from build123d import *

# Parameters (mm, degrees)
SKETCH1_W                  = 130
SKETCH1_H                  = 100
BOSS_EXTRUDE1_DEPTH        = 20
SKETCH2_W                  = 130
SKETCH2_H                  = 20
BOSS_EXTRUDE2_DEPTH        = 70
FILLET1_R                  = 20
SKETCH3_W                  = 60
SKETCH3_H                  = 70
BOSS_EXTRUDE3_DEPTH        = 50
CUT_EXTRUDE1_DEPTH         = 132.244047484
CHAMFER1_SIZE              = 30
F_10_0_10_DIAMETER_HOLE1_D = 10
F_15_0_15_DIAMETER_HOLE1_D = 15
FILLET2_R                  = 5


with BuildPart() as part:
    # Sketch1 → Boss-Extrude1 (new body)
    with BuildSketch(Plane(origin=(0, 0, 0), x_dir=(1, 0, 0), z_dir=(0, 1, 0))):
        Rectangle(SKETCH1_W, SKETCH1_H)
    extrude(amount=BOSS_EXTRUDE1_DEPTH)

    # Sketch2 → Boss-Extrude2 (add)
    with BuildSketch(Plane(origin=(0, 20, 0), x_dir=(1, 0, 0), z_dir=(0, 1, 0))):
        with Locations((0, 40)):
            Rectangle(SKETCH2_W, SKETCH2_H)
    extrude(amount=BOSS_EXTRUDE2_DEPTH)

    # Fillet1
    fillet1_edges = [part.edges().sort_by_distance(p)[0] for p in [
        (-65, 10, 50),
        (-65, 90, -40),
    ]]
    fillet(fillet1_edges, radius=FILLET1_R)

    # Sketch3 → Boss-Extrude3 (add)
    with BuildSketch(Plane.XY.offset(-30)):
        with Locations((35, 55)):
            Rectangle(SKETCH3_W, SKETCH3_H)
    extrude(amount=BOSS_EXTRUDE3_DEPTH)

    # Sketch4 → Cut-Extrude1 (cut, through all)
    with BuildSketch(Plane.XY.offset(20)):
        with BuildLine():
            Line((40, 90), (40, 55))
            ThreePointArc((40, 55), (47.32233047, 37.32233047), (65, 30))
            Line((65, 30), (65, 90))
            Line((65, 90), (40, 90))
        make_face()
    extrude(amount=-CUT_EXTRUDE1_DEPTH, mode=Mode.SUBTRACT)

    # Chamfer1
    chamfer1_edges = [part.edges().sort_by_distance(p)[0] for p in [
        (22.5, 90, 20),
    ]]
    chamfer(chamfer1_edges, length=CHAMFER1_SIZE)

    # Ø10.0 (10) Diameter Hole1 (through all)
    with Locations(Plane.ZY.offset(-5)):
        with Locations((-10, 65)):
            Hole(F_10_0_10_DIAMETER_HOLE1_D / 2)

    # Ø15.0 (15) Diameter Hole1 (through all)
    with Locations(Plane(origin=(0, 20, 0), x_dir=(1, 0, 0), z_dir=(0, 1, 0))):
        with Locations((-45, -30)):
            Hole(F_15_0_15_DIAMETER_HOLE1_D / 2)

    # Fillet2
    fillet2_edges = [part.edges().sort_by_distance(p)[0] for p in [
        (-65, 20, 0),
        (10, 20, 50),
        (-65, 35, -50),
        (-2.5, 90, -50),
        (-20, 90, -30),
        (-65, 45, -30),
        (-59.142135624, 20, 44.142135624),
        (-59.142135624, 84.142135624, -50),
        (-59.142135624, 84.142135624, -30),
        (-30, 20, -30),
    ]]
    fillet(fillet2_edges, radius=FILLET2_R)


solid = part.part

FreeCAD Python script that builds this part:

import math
import FreeCAD as App
import Part
import Sketcher
Q = App.Units.Quantity


def edges_at(feature, points):
    """Names of the edges that pass closest to the given points."""
    edges = feature.Shape.Edges
    near = lambda p: min(range(len(edges)), key=lambda i: edges[i].distToShape(Part.Vertex(*p))[0])
    return sorted({f"Edge{near(p) + 1}" for p in points})


def add_polygon(sketch, points):
    """Adds a closed chain of lines whose ends are joined by coincident constraints."""
    first, n = sketch.GeometryCount, len(points)
    for a, b in zip(points, points[1:] + points[:1]):
        sketch.addGeometry(Part.LineSegment(App.Vector(*a, 0), App.Vector(*b, 0)), False)
    for i in range(n):
        sketch.addConstraint(Sketcher.Constraint("Coincident", first + i, 2, first + (i + 1) % n, 1))

doc = App.newDocument("Part")
body = doc.addObject("PartDesign::Body", "Body")

# Sketch on XZ plane
sketch1 = doc.addObject("Sketcher::SketchObject", "Sketch")
body.addObject(sketch1)
sketch1.AttachmentSupport = (doc.XZ_Plane, [""])
sketch1.MapMode = "FlatFace"
add_polygon(sketch1, [(-65, -50), (-65, 50), (65, 50), (65, -50)])  # lines 0-3
sketch1.addConstraint(Sketcher.Constraint("Vertical", 0))
sketch1.addConstraint(Sketcher.Constraint("Horizontal", 1))
sketch1.addConstraint(Sketcher.Constraint("Vertical", 2))
sketch1.addConstraint(Sketcher.Constraint("Horizontal", 3))
sketch1.addConstraint(Sketcher.Constraint("Symmetric", 0, 2, 2, 2, -1, 1))
sketch1.addConstraint(Sketcher.Constraint("DistanceX", 1, 1, 1, 2, Q("130 mm")))
sketch1.addConstraint(Sketcher.Constraint("DistanceY", 0, 1, 0, 2, Q("100 mm")))
pad1 = doc.addObject("PartDesign::Pad", "Pad")
body.addObject(pad1)
pad1.Profile = sketch1
pad1.Length = 20
pad1.Reversed = True

# Sketch on XZ plane
sketch2 = doc.addObject("Sketcher::SketchObject", "Sketch001")
body.addObject(sketch2)
sketch2.AttachmentSupport = (doc.XZ_Plane, [""])
sketch2.MapMode = "FlatFace"
sketch2.AttachmentOffset = App.Placement(App.Vector(0, 0, -20), App.Rotation())
add_polygon(sketch2, [(-65, -50), (-65, -30), (65, -30), (65, -50)])  # lines 0-3
sketch2.addConstraint(Sketcher.Constraint("Vertical", 0))
sketch2.addConstraint(Sketcher.Constraint("Horizontal", 1))
sketch2.addConstraint(Sketcher.Constraint("Vertical", 2))
sketch2.addConstraint(Sketcher.Constraint("Horizontal", 3))
sketch2.addConstraint(Sketcher.Constraint("DistanceX", 1, 1, 1, 2, Q("130 mm")))
sketch2.addConstraint(Sketcher.Constraint("DistanceY", 0, 1, 0, 2, Q("20 mm")))
sketch2.addConstraint(Sketcher.Constraint("DistanceX", 0, 2, -1, 1, Q("65 mm")))
sketch2.addConstraint(Sketcher.Constraint("DistanceY", 0, 2, -1, 1, Q("30 mm")))
pad2 = doc.addObject("PartDesign::Pad", "Pad001")
body.addObject(pad2)
pad2.Profile = sketch2
pad2.Length = 70
pad2.Reversed = True
doc.recompute()

fillet = doc.addObject("PartDesign::Fillet", "Fillet")
body.addObject(fillet)
fillet.Base = (pad2, edges_at(pad2, [(-65, 10, 50), (-65, 90, -40)]))
fillet.Radius = 20

# Sketch on XY plane
sketch3 = doc.addObject("Sketcher::SketchObject", "Sketch002")
body.addObject(sketch3)
sketch3.AttachmentSupport = (doc.XY_Plane, [""])
sketch3.MapMode = "FlatFace"
sketch3.AttachmentOffset = App.Placement(App.Vector(0, 0, -30), App.Rotation())
add_polygon(sketch3, [(5, 90), (5, 20), (65, 20), (65, 90)])  # lines 0-3
sketch3.addConstraint(Sketcher.Constraint("Vertical", 0))
sketch3.addConstraint(Sketcher.Constraint("Horizontal", 1))
sketch3.addConstraint(Sketcher.Constraint("Vertical", 2))
sketch3.addConstraint(Sketcher.Constraint("Horizontal", 3))
sketch3.addConstraint(Sketcher.Constraint("DistanceX", 1, 1, 1, 2, Q("60 mm")))
sketch3.addConstraint(Sketcher.Constraint("DistanceY", 0, 2, 0, 1, Q("70 mm")))
sketch3.addConstraint(Sketcher.Constraint("DistanceX", -1, 1, 0, 2, Q("5 mm")))
sketch3.addConstraint(Sketcher.Constraint("DistanceY", -1, 1, 0, 2, Q("20 mm")))
pad3 = doc.addObject("PartDesign::Pad", "Pad002")
body.addObject(pad3)
pad3.Profile = sketch3
pad3.Length = 50

# Sketch on XY plane
sketch4 = doc.addObject("Sketcher::SketchObject", "Sketch003")
body.addObject(sketch4)
sketch4.AttachmentSupport = (doc.XY_Plane, [""])
sketch4.MapMode = "FlatFace"
sketch4.AttachmentOffset = App.Placement(App.Vector(0, 0, 20), App.Rotation())
sketch4.addGeometry(Part.LineSegment(App.Vector(40, 90, 0), App.Vector(40, 55, 0)), False)
sketch4.addGeometry(Part.ArcOfCircle(Part.Circle(App.Vector(65, 55, 0), App.Vector(0, 0, 1), 25), math.radians(180), math.radians(270)), False)
sketch4.addGeometry(Part.LineSegment(App.Vector(65, 30, 0), App.Vector(65, 90, 0)), False)
sketch4.addGeometry(Part.LineSegment(App.Vector(65, 90, 0), App.Vector(40, 90, 0)), False)
sketch4.addConstraint(Sketcher.Constraint("Tangent", 0, 2, 1, 1))
sketch4.addConstraint(Sketcher.Constraint("Coincident", 1, 2, 2, 1))
sketch4.addConstraint(Sketcher.Constraint("Coincident", 2, 2, 3, 1))
sketch4.addConstraint(Sketcher.Constraint("Coincident", 3, 2, 0, 1))
sketch4.addConstraint(Sketcher.Constraint("Vertical", 0))
sketch4.addConstraint(Sketcher.Constraint("Vertical", 2))
sketch4.addConstraint(Sketcher.Constraint("Horizontal", 3))
sketch4.addConstraint(Sketcher.Constraint("Radius", 1, Q("25 mm")))
sketch4.addConstraint(Sketcher.Constraint("DistanceX", 3, 2, 3, 1, Q("25 mm")))
sketch4.addConstraint(Sketcher.Constraint("DistanceY", 0, 2, 0, 1, Q("35 mm")))
sketch4.addConstraint(Sketcher.Constraint("DistanceX", -1, 1, 1, 3, Q("65 mm")))
sketch4.addConstraint(Sketcher.Constraint("DistanceY", -1, 1, 1, 3, Q("55 mm")))
pocket1 = doc.addObject("PartDesign::Pocket", "Pocket")
body.addObject(pocket1)
pocket1.Profile = sketch4
pocket1.Type = "ThroughAll"
doc.recompute()

chamfer = doc.addObject("PartDesign::Chamfer", "Chamfer")
body.addObject(chamfer)
chamfer.Base = (pocket1, edges_at(pocket1, [(22.5, 90, 20)]))
chamfer.Size = 30

# Sketch on YZ plane
sketch5 = doc.addObject("Sketcher::SketchObject", "Sketch004")
body.addObject(sketch5)
sketch5.AttachmentSupport = (doc.YZ_Plane, [""])
sketch5.MapMode = "FlatFace"
sketch5.AttachmentOffset = App.Placement(App.Vector(0, 0, 5), App.Rotation())
sketch5.addGeometry(Part.Circle(App.Vector(65, -10, 0), App.Vector(0, 0, 1), 5), False)
sketch5.addConstraint(Sketcher.Constraint("Diameter", 0, Q("10 mm")))
sketch5.addConstraint(Sketcher.Constraint("DistanceX", -1, 1, 0, 3, Q("65 mm")))
sketch5.addConstraint(Sketcher.Constraint("DistanceY", 0, 3, -1, 1, Q("10 mm")))
doc.recompute()
hole = doc.addObject("PartDesign::Hole", "Hole")
body.addObject(hole)
hole.Profile = sketch5
hole.ThreadType = "None"
hole.Diameter = 10
hole.DepthType = "ThroughAll"
hole.Reversed = True

# Sketch on XZ plane
sketch6 = doc.addObject("Sketcher::SketchObject", "Sketch005")
body.addObject(sketch6)
sketch6.AttachmentSupport = (doc.XZ_Plane, [""])
sketch6.MapMode = "FlatFace"
sketch6.AttachmentOffset = App.Placement(App.Vector(0, 0, -20), App.Rotation())
sketch6.addGeometry(Part.Circle(App.Vector(-45, 30, 0), App.Vector(0, 0, 1), 8), False)
sketch6.addConstraint(Sketcher.Constraint("Diameter", 0, Q("15 mm")))
sketch6.addConstraint(Sketcher.Constraint("DistanceX", 0, 3, -1, 1, Q("45 mm")))
sketch6.addConstraint(Sketcher.Constraint("DistanceY", -1, 1, 0, 3, Q("30 mm")))
doc.recompute()
hole2 = doc.addObject("PartDesign::Hole", "Hole001")
body.addObject(hole2)
hole2.Profile = sketch6
hole2.ThreadType = "None"
hole2.Diameter = 15
hole2.DepthType = "ThroughAll"
hole2.Reversed = True
doc.recompute()

fillet2 = doc.addObject("PartDesign::Fillet", "Fillet001")
body.addObject(fillet2)
fillet2.Base = (hole2, edges_at(hole2, [
    (-65, 20, 0),
    (10, 20, 50),
    (-65, 35, -50),
    (-2.5, 90, -50),
    (-20, 90, -30),
    (-65, 45, -30),
    (-59.142, 20, 44.142),
    (-59.142, 84.142, -50),
    (-59.142, 84.142, -30),
    (-30, 20, -30),
]))
fillet2.Radius = 5

doc.recompute()
